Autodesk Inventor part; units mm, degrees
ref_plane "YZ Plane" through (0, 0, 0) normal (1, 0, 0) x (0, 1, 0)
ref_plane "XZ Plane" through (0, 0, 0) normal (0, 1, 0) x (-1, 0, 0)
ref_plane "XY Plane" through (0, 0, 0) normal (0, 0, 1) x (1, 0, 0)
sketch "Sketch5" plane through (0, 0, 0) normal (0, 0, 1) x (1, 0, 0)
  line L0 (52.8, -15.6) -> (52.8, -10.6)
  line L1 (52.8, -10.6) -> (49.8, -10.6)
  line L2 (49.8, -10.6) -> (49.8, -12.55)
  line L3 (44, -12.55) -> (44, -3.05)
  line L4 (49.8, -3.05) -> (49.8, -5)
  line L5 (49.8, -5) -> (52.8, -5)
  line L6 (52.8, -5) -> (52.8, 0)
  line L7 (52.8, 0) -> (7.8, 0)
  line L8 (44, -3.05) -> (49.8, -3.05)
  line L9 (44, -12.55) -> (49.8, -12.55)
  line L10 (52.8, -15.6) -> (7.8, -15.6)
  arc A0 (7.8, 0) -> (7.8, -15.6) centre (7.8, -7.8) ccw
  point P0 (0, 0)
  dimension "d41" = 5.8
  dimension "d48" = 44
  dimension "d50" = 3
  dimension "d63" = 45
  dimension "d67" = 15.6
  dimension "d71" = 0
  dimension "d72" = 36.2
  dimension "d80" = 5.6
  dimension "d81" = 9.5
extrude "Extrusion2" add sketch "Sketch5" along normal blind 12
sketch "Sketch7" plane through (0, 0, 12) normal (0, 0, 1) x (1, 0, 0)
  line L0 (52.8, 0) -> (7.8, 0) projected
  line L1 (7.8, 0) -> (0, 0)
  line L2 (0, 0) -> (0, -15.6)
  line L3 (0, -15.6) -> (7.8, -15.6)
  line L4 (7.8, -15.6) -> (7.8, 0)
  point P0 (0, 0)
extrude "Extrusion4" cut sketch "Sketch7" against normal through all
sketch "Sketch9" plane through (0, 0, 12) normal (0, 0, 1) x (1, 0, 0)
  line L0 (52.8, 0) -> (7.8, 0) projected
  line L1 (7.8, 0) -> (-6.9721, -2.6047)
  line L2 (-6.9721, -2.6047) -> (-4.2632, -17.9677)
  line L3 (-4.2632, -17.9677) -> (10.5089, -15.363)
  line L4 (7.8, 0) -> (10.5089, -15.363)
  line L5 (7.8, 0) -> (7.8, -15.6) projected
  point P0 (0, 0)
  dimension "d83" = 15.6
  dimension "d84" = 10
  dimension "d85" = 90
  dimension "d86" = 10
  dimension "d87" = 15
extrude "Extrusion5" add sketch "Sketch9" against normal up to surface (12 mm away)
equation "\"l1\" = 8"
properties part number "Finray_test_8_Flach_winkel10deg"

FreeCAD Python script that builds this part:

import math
import FreeCAD as App
import Part
import Sketcher
from FreeCAD import Vector
Q = App.Units.Quantity

doc = App.newDocument("Part")
body = doc.addObject("PartDesign::Body", "Body")

sketch1 = body.newObject("Sketcher::SketchObject", "Sketch")
sketch1.AttachmentSupport = (doc.getObject("XY_Plane"), [""])
sketch1.MapMode = "FlatFace"
sketch1.addGeometry(Part.LineSegment(Vector(7.8, -15.6, 0), Vector(52.8, -15.6, 0)), False)
sketch1.addGeometry(Part.LineSegment(Vector(52.8, -15.6, 0), Vector(52.8, -10.6, 0)), False)
sketch1.addGeometry(Part.LineSegment(Vector(52.8, -10.6, 0), Vector(49.8, -10.6, 0)), False)
sketch1.addGeometry(Part.LineSegment(Vector(49.8, -10.6, 0), Vector(49.8, -12.6, 0)), False)
sketch1.addGeometry(Part.LineSegment(Vector(49.8, -12.6, 0), Vector(44, -12.6, 0)), False)
sketch1.addGeometry(Part.LineSegment(Vector(44, -12.6, 0), Vector(44, -3, 0)), False)
sketch1.addGeometry(Part.LineSegment(Vector(44, -3, 0), Vector(49.8, -3, 0)), False)
sketch1.addGeometry(Part.LineSegment(Vector(49.8, -3, 0), Vector(49.8, -5, 0)), False)
sketch1.addGeometry(Part.LineSegment(Vector(49.8, -5, 0), Vector(52.8, -5, 0)), False)
sketch1.addGeometry(Part.LineSegment(Vector(52.8, -5, 0), Vector(52.8, 0, 0)), False)
sketch1.addGeometry(Part.LineSegment(Vector(52.8, 0, 0), Vector(7.8, 0, 0)), False)
sketch1.addGeometry(Part.ArcOfCircle(Part.Circle(Vector(7.8, -7.8, 0), Vector(0, 0, 1), 7.8), math.radians(90), math.radians(270)), False)
sketch1.addConstraint(Sketcher.Constraint("Coincident", 0, 2, 1, 1))
sketch1.addConstraint(Sketcher.Constraint("Coincident", 1, 2, 2, 1))
sketch1.addConstraint(Sketcher.Constraint("Coincident", 2, 2, 3, 1))
sketch1.addConstraint(Sketcher.Constraint("Coincident", 3, 2, 4, 1))
sketch1.addConstraint(Sketcher.Constraint("Coincident", 4, 2, 5, 1))
sketch1.addConstraint(Sketcher.Constraint("Coincident", 5, 2, 6, 1))
sketch1.addConstraint(Sketcher.Constraint("Coincident", 6, 2, 7, 1))
sketch1.addConstraint(Sketcher.Constraint("Coincident", 7, 2, 8, 1))
sketch1.addConstraint(Sketcher.Constraint("Coincident", 8, 2, 9, 1))
sketch1.addConstraint(Sketcher.Constraint("Coincident", 9, 2, 10, 1))
sketch1.addConstraint(Sketcher.Constraint("Tangent", 10, 2, 11, 1))
sketch1.addConstraint(Sketcher.Constraint("Tangent", 11, 2, 0, 1))
sketch1.addConstraint(Sketcher.Constraint("Horizontal", 0))
sketch1.addConstraint(Sketcher.Constraint("Vertical", 1))
sketch1.addConstraint(Sketcher.Constraint("Horizontal", 2))
sketch1.addConstraint(Sketcher.Constraint("Vertical", 3))
sketch1.addConstraint(Sketcher.Constraint("Horizontal", 4))
sketch1.addConstraint(Sketcher.Constraint("Vertical", 5))
sketch1.addConstraint(Sketcher.Constraint("Horizontal", 6))
sketch1.addConstraint(Sketcher.Constraint("Vertical", 7))
sketch1.addConstraint(Sketcher.Constraint("Horizontal", 8))
sketch1.addConstraint(Sketcher.Constraint("Vertical", 9))
sketch1.addConstraint(Sketcher.Constraint("Horizontal", 10))
sketch1.addConstraint(Sketcher.Constraint("PointOnObject", 9, 2, -1))
sketch1.addConstraint(Sketcher.Constraint("Vertical", 3, 2, 6, 2))
sketch1.addConstraint(Sketcher.Constraint("Vertical", 1, 2, 8, 2))
sketch1.addConstraint(Sketcher.Constraint("Equal", 3, 7))
sketch1.addConstraint(Sketcher.Constraint("Equal", 1, 9))
sketch1.addConstraint(Sketcher.Constraint("Radius", 11, Q("7.8 mm")))
sketch1.addConstraint(Sketcher.Constraint("DistanceX", 0, 1, 0, 2, Q("45 mm")))
sketch1.addConstraint(Sketcher.Constraint("DistanceX", 2, 2, 2, 1, Q("3 mm")))
sketch1.addConstraint(Sketcher.Constraint("DistanceX", 4, 2, 4, 1, Q("5.8 mm")))
sketch1.addConstraint(Sketcher.Constraint("DistanceY", 5, 1, 5, 2, Q("9.5 mm")))
sketch1.addConstraint(Sketcher.Constraint("DistanceX", -1, 1, 4, 2, Q("44 mm")))
sketch1.addConstraint(Sketcher.Constraint("DistanceY", 2, 2, 7, 2, Q("5.6 mm")))
pad1 = body.newObject("PartDesign::Pad", "Pad")
pad1.Profile = sketch1
pad1.Length = 12

sketch2 = body.newObject("Sketcher::SketchObject", "Sketch001")
sketch2.AttachmentSupport = (doc.getObject("XY_Plane"), [""])
sketch2.MapMode = "FlatFace"
sketch2.AttachmentOffset = App.Placement(Vector(0, 0, 12), App.Rotation())
sketch2.addGeometry(Part.LineSegment(Vector(8, -16, 0), Vector(8, 0, 0)), False)
sketch2.addGeometry(Part.LineSegment(Vector(8, 0, 0), Vector(0, 0, 0)), False)
sketch2.addGeometry(Part.LineSegment(Vector(0, 0, 0), Vector(0, -16, 0)), False)
sketch2.addGeometry(Part.LineSegment(Vector(0, -16, 0), Vector(8, -16, 0)), False)
sketch2.addConstraint(Sketcher.Constraint("Coincident", 0, 2, 1, 1))
sketch2.addConstraint(Sketcher.Constraint("Coincident", 1, 2, 2, 1))
sketch2.addConstraint(Sketcher.Constraint("Coincident", 2, 2, 3, 1))
sketch2.addConstraint(Sketcher.Constraint("Coincident", 3, 2, 0, 1))
sketch2.addConstraint(Sketcher.Constraint("Vertical", 0))
sketch2.addConstraint(Sketcher.Constraint("Horizontal", 1))
sketch2.addConstraint(Sketcher.Constraint("Vertical", 2))
sketch2.addConstraint(Sketcher.Constraint("Horizontal", 3))
sketch2.addConstraint(Sketcher.Constraint("Coincident", 1, 2, -1, 1))
sketch2.addConstraint(Sketcher.Constraint("DistanceX", 1, 2, 1, 1, Q("7.8 mm")))
sketch2.addConstraint(Sketcher.Constraint("DistanceY", 0, 1, 0, 2, Q("15.6 mm")))
pocket1 = body.newObject("PartDesign::Pocket", "Pocket")
pocket1.Profile = sketch2
pocket1.Type = "ThroughAll"

sketch3 = body.newObject("Sketcher::SketchObject", "Sketch002")
sketch3.AttachmentSupport = (doc.getObject("XY_Plane"), [""])
sketch3.MapMode = "FlatFace"
sketch3.AttachmentOffset = App.Placement(Vector(0, 0, 12), App.Rotation())
sketch3.addGeometry(Part.LineSegment(Vector(11, -15, 0), Vector(8, 0, 0)), False)
sketch3.addGeometry(Part.LineSegment(Vector(8, 0, 0), Vector(-7, -3, 0)), False)
sketch3.addGeometry(Part.LineSegment(Vector(-7, -3, 0), Vector(-4, -18, 0)), False)
sketch3.addGeometry(Part.LineSegment(Vector(-4, -18, 0), Vector(11, -15, 0)), False)
sketch3.addConstraint(Sketcher.Constraint("Coincident", 0, 2, 1, 1))
sketch3.addConstraint(Sketcher.Constraint("Coincident", 1, 2, 2, 1))
sketch3.addConstraint(Sketcher.Constraint("Coincident", 2, 2, 3, 1))
sketch3.addConstraint(Sketcher.Constraint("Coincident", 3, 2, 0, 1))
sketch3.addConstraint(Sketcher.Constraint("PointOnObject", 0, 2, -1))
sketch3.addConstraint(Sketcher.Constraint("Perpendicular", 0, 1))
sketch3.addConstraint(Sketcher.Constraint("Perpendicular", 1, 2))
sketch3.addConstraint(Sketcher.Constraint("Perpendicular", 2, 3))
sketch3.addConstraint(Sketcher.Constraint("Angle", 3, Q("10 deg")))
sketch3.addConstraint(Sketcher.Constraint("Distance", 1, Q("15 mm")))
sketch3.addConstraint(Sketcher.Constraint("Distance", 0, Q("15.6 mm")))
sketch3.addConstraint(Sketcher.Constraint("DistanceX", -1, 1, 0, 2, Q("7.8 mm")))
pad2 = body.newObject("PartDesign::Pad", "Pad001")
pad2.Profile = sketch3
pad2.Length = 12
pad2.Reversed = True

doc.recompute()
